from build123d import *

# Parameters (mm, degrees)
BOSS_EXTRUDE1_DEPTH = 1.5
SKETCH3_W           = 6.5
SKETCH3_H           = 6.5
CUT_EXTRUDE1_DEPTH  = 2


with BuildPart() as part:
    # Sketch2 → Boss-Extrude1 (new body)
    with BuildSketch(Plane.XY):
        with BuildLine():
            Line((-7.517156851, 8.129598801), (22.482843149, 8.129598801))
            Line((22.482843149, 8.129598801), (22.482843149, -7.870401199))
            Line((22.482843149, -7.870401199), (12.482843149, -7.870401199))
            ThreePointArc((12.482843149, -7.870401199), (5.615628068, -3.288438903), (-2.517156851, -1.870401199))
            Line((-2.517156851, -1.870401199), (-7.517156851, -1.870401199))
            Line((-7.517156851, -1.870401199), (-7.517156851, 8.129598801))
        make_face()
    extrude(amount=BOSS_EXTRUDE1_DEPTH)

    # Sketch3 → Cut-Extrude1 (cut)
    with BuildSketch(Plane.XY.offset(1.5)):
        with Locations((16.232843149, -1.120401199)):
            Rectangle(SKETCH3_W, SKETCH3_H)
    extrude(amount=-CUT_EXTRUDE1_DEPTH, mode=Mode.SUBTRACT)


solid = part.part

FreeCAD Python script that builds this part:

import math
import FreeCAD as App
import Part
import Sketcher
from FreeCAD import Vector
Q = App.Units.Quantity


def add_polygon(sketch, points):
    """Adds a closed chain of lines whose ends are joined by coincident constraints."""
    first, n = sketch.GeometryCount, len(points)
    for a, b in zip(points, points[1:] + points[:1]):
        sketch.addGeometry(Part.LineSegment(App.Vector(*a, 0), App.Vector(*b, 0)), False)
    for i in range(n):
        sketch.addConstraint(Sketcher.Constraint("Coincident", first + i, 2, first + (i + 1) % n, 1))

doc = App.newDocument("Part")
body = doc.addObject("PartDesign::Body", "Body")

# Sketch on XY plane
sketch1 = body.newObject("Sketcher::SketchObject", "Sketch")
sketch1.AttachmentSupport = (doc.getObject("XY_Plane"), [""])
sketch1.MapMode = "FlatFace"
sketch1.addGeometry([
    Part.LineSegment(Vector(22.482843, 8.129599, 0), Vector(-7.517157, 8.129599, 0)),  # 0
    Part.LineSegment(Vector(-7.517157, 8.129599, 0), Vector(-7.517157, -1.870401, 0)),  # 1
    Part.LineSegment(Vector(-7.517157, -1.870401, 0), Vector(-2.517157, -1.870401, 0)),  # 2
    Part.ArcOfCircle(Part.Circle(Vector(-1.812185, -21.857973, 0), Vector(0, 0, 1), 20), math.radians(44.377168), math.radians(92.020013)),  # 3
    Part.LineSegment(Vector(12.482843, -7.870401, 0), Vector(22.482843, -7.870401, 0)),  # 4
    Part.LineSegment(Vector(22.482843, -7.870401, 0), Vector(22.482843, 8.129599, 0)),  # 5
], False)
sketch1.addConstraint([
    Sketcher.Constraint("Coincident", 0, 2, 1, 1),
    Sketcher.Constraint("Coincident", 1, 2, 2, 1),
    Sketcher.Constraint("Coincident", 2, 2, 3, 2),
    Sketcher.Constraint("Coincident", 3, 1, 4, 1),
    Sketcher.Constraint("Coincident", 4, 2, 5, 1),
    Sketcher.Constraint("Coincident", 5, 2, 0, 1),
    Sketcher.Constraint("Horizontal", 0),
    Sketcher.Constraint("Vertical", 1),
    Sketcher.Constraint("Horizontal", 2),
    Sketcher.Constraint("Horizontal", 4),
    Sketcher.Constraint("Vertical", 5),
    Sketcher.Constraint("Equal", 4, 1),
    Sketcher.Constraint("Radius", 3, Q("20 mm")),
    Sketcher.Constraint("DistanceX", 0, 2, 0, 1, Q("30 mm")),
    Sketcher.Constraint("DistanceX", 2, 1, 2, 2, Q("5 mm")),
    Sketcher.Constraint("DistanceX", 4, 1, 4, 2, Q("10 mm")),
    Sketcher.Constraint("DistanceY", 5, 1, 5, 2, Q("16 mm")),
    Sketcher.Constraint("DistanceY", -1, 1, 0, 2, Q("8.129599 mm")),
    Sketcher.Constraint("DistanceX", 3, 3, -1, 1, Q("1.812185 mm")),
])
pad1 = body.newObject("PartDesign::Pad", "Pad")
pad1.Profile = sketch1
pad1.Length = 1.5

# Sketch on XY plane
sketch2 = body.newObject("Sketcher::SketchObject", "Sketch001")
sketch2.AttachmentSupport = (doc.getObject("XY_Plane"), [""])
sketch2.MapMode = "FlatFace"
sketch2.AttachmentOffset = App.Placement(Vector(0, 0, 1.5), App.Rotation())
add_polygon(sketch2, [(12.982843, 2.129599), (12.982843, -4.370401), (19.482843, -4.370401), (19.482843, 2.129599)])  # lines 0-3
sketch2.addConstraint([
    Sketcher.Constraint("Vertical", 0),
    Sketcher.Constraint("Horizontal", 1),
    Sketcher.Constraint("Vertical", 2),
    Sketcher.Constraint("Horizontal", 3),
    Sketcher.Constraint("Equal", 3, 0),
    Sketcher.Constraint("DistanceX", 1, 1, 1, 2, Q("6.5 mm")),
    Sketcher.Constraint("DistanceY", 0, 2, -1, 1, Q("4.370401 mm")),
    Sketcher.Constraint("DistanceX", -1, 1, 0, 2, Q("12.982843 mm")),
])
pocket1 = body.newObject("PartDesign::Pocket", "Pocket")
pocket1.Profile = sketch2
pocket1.Length = 2

doc.recompute()
